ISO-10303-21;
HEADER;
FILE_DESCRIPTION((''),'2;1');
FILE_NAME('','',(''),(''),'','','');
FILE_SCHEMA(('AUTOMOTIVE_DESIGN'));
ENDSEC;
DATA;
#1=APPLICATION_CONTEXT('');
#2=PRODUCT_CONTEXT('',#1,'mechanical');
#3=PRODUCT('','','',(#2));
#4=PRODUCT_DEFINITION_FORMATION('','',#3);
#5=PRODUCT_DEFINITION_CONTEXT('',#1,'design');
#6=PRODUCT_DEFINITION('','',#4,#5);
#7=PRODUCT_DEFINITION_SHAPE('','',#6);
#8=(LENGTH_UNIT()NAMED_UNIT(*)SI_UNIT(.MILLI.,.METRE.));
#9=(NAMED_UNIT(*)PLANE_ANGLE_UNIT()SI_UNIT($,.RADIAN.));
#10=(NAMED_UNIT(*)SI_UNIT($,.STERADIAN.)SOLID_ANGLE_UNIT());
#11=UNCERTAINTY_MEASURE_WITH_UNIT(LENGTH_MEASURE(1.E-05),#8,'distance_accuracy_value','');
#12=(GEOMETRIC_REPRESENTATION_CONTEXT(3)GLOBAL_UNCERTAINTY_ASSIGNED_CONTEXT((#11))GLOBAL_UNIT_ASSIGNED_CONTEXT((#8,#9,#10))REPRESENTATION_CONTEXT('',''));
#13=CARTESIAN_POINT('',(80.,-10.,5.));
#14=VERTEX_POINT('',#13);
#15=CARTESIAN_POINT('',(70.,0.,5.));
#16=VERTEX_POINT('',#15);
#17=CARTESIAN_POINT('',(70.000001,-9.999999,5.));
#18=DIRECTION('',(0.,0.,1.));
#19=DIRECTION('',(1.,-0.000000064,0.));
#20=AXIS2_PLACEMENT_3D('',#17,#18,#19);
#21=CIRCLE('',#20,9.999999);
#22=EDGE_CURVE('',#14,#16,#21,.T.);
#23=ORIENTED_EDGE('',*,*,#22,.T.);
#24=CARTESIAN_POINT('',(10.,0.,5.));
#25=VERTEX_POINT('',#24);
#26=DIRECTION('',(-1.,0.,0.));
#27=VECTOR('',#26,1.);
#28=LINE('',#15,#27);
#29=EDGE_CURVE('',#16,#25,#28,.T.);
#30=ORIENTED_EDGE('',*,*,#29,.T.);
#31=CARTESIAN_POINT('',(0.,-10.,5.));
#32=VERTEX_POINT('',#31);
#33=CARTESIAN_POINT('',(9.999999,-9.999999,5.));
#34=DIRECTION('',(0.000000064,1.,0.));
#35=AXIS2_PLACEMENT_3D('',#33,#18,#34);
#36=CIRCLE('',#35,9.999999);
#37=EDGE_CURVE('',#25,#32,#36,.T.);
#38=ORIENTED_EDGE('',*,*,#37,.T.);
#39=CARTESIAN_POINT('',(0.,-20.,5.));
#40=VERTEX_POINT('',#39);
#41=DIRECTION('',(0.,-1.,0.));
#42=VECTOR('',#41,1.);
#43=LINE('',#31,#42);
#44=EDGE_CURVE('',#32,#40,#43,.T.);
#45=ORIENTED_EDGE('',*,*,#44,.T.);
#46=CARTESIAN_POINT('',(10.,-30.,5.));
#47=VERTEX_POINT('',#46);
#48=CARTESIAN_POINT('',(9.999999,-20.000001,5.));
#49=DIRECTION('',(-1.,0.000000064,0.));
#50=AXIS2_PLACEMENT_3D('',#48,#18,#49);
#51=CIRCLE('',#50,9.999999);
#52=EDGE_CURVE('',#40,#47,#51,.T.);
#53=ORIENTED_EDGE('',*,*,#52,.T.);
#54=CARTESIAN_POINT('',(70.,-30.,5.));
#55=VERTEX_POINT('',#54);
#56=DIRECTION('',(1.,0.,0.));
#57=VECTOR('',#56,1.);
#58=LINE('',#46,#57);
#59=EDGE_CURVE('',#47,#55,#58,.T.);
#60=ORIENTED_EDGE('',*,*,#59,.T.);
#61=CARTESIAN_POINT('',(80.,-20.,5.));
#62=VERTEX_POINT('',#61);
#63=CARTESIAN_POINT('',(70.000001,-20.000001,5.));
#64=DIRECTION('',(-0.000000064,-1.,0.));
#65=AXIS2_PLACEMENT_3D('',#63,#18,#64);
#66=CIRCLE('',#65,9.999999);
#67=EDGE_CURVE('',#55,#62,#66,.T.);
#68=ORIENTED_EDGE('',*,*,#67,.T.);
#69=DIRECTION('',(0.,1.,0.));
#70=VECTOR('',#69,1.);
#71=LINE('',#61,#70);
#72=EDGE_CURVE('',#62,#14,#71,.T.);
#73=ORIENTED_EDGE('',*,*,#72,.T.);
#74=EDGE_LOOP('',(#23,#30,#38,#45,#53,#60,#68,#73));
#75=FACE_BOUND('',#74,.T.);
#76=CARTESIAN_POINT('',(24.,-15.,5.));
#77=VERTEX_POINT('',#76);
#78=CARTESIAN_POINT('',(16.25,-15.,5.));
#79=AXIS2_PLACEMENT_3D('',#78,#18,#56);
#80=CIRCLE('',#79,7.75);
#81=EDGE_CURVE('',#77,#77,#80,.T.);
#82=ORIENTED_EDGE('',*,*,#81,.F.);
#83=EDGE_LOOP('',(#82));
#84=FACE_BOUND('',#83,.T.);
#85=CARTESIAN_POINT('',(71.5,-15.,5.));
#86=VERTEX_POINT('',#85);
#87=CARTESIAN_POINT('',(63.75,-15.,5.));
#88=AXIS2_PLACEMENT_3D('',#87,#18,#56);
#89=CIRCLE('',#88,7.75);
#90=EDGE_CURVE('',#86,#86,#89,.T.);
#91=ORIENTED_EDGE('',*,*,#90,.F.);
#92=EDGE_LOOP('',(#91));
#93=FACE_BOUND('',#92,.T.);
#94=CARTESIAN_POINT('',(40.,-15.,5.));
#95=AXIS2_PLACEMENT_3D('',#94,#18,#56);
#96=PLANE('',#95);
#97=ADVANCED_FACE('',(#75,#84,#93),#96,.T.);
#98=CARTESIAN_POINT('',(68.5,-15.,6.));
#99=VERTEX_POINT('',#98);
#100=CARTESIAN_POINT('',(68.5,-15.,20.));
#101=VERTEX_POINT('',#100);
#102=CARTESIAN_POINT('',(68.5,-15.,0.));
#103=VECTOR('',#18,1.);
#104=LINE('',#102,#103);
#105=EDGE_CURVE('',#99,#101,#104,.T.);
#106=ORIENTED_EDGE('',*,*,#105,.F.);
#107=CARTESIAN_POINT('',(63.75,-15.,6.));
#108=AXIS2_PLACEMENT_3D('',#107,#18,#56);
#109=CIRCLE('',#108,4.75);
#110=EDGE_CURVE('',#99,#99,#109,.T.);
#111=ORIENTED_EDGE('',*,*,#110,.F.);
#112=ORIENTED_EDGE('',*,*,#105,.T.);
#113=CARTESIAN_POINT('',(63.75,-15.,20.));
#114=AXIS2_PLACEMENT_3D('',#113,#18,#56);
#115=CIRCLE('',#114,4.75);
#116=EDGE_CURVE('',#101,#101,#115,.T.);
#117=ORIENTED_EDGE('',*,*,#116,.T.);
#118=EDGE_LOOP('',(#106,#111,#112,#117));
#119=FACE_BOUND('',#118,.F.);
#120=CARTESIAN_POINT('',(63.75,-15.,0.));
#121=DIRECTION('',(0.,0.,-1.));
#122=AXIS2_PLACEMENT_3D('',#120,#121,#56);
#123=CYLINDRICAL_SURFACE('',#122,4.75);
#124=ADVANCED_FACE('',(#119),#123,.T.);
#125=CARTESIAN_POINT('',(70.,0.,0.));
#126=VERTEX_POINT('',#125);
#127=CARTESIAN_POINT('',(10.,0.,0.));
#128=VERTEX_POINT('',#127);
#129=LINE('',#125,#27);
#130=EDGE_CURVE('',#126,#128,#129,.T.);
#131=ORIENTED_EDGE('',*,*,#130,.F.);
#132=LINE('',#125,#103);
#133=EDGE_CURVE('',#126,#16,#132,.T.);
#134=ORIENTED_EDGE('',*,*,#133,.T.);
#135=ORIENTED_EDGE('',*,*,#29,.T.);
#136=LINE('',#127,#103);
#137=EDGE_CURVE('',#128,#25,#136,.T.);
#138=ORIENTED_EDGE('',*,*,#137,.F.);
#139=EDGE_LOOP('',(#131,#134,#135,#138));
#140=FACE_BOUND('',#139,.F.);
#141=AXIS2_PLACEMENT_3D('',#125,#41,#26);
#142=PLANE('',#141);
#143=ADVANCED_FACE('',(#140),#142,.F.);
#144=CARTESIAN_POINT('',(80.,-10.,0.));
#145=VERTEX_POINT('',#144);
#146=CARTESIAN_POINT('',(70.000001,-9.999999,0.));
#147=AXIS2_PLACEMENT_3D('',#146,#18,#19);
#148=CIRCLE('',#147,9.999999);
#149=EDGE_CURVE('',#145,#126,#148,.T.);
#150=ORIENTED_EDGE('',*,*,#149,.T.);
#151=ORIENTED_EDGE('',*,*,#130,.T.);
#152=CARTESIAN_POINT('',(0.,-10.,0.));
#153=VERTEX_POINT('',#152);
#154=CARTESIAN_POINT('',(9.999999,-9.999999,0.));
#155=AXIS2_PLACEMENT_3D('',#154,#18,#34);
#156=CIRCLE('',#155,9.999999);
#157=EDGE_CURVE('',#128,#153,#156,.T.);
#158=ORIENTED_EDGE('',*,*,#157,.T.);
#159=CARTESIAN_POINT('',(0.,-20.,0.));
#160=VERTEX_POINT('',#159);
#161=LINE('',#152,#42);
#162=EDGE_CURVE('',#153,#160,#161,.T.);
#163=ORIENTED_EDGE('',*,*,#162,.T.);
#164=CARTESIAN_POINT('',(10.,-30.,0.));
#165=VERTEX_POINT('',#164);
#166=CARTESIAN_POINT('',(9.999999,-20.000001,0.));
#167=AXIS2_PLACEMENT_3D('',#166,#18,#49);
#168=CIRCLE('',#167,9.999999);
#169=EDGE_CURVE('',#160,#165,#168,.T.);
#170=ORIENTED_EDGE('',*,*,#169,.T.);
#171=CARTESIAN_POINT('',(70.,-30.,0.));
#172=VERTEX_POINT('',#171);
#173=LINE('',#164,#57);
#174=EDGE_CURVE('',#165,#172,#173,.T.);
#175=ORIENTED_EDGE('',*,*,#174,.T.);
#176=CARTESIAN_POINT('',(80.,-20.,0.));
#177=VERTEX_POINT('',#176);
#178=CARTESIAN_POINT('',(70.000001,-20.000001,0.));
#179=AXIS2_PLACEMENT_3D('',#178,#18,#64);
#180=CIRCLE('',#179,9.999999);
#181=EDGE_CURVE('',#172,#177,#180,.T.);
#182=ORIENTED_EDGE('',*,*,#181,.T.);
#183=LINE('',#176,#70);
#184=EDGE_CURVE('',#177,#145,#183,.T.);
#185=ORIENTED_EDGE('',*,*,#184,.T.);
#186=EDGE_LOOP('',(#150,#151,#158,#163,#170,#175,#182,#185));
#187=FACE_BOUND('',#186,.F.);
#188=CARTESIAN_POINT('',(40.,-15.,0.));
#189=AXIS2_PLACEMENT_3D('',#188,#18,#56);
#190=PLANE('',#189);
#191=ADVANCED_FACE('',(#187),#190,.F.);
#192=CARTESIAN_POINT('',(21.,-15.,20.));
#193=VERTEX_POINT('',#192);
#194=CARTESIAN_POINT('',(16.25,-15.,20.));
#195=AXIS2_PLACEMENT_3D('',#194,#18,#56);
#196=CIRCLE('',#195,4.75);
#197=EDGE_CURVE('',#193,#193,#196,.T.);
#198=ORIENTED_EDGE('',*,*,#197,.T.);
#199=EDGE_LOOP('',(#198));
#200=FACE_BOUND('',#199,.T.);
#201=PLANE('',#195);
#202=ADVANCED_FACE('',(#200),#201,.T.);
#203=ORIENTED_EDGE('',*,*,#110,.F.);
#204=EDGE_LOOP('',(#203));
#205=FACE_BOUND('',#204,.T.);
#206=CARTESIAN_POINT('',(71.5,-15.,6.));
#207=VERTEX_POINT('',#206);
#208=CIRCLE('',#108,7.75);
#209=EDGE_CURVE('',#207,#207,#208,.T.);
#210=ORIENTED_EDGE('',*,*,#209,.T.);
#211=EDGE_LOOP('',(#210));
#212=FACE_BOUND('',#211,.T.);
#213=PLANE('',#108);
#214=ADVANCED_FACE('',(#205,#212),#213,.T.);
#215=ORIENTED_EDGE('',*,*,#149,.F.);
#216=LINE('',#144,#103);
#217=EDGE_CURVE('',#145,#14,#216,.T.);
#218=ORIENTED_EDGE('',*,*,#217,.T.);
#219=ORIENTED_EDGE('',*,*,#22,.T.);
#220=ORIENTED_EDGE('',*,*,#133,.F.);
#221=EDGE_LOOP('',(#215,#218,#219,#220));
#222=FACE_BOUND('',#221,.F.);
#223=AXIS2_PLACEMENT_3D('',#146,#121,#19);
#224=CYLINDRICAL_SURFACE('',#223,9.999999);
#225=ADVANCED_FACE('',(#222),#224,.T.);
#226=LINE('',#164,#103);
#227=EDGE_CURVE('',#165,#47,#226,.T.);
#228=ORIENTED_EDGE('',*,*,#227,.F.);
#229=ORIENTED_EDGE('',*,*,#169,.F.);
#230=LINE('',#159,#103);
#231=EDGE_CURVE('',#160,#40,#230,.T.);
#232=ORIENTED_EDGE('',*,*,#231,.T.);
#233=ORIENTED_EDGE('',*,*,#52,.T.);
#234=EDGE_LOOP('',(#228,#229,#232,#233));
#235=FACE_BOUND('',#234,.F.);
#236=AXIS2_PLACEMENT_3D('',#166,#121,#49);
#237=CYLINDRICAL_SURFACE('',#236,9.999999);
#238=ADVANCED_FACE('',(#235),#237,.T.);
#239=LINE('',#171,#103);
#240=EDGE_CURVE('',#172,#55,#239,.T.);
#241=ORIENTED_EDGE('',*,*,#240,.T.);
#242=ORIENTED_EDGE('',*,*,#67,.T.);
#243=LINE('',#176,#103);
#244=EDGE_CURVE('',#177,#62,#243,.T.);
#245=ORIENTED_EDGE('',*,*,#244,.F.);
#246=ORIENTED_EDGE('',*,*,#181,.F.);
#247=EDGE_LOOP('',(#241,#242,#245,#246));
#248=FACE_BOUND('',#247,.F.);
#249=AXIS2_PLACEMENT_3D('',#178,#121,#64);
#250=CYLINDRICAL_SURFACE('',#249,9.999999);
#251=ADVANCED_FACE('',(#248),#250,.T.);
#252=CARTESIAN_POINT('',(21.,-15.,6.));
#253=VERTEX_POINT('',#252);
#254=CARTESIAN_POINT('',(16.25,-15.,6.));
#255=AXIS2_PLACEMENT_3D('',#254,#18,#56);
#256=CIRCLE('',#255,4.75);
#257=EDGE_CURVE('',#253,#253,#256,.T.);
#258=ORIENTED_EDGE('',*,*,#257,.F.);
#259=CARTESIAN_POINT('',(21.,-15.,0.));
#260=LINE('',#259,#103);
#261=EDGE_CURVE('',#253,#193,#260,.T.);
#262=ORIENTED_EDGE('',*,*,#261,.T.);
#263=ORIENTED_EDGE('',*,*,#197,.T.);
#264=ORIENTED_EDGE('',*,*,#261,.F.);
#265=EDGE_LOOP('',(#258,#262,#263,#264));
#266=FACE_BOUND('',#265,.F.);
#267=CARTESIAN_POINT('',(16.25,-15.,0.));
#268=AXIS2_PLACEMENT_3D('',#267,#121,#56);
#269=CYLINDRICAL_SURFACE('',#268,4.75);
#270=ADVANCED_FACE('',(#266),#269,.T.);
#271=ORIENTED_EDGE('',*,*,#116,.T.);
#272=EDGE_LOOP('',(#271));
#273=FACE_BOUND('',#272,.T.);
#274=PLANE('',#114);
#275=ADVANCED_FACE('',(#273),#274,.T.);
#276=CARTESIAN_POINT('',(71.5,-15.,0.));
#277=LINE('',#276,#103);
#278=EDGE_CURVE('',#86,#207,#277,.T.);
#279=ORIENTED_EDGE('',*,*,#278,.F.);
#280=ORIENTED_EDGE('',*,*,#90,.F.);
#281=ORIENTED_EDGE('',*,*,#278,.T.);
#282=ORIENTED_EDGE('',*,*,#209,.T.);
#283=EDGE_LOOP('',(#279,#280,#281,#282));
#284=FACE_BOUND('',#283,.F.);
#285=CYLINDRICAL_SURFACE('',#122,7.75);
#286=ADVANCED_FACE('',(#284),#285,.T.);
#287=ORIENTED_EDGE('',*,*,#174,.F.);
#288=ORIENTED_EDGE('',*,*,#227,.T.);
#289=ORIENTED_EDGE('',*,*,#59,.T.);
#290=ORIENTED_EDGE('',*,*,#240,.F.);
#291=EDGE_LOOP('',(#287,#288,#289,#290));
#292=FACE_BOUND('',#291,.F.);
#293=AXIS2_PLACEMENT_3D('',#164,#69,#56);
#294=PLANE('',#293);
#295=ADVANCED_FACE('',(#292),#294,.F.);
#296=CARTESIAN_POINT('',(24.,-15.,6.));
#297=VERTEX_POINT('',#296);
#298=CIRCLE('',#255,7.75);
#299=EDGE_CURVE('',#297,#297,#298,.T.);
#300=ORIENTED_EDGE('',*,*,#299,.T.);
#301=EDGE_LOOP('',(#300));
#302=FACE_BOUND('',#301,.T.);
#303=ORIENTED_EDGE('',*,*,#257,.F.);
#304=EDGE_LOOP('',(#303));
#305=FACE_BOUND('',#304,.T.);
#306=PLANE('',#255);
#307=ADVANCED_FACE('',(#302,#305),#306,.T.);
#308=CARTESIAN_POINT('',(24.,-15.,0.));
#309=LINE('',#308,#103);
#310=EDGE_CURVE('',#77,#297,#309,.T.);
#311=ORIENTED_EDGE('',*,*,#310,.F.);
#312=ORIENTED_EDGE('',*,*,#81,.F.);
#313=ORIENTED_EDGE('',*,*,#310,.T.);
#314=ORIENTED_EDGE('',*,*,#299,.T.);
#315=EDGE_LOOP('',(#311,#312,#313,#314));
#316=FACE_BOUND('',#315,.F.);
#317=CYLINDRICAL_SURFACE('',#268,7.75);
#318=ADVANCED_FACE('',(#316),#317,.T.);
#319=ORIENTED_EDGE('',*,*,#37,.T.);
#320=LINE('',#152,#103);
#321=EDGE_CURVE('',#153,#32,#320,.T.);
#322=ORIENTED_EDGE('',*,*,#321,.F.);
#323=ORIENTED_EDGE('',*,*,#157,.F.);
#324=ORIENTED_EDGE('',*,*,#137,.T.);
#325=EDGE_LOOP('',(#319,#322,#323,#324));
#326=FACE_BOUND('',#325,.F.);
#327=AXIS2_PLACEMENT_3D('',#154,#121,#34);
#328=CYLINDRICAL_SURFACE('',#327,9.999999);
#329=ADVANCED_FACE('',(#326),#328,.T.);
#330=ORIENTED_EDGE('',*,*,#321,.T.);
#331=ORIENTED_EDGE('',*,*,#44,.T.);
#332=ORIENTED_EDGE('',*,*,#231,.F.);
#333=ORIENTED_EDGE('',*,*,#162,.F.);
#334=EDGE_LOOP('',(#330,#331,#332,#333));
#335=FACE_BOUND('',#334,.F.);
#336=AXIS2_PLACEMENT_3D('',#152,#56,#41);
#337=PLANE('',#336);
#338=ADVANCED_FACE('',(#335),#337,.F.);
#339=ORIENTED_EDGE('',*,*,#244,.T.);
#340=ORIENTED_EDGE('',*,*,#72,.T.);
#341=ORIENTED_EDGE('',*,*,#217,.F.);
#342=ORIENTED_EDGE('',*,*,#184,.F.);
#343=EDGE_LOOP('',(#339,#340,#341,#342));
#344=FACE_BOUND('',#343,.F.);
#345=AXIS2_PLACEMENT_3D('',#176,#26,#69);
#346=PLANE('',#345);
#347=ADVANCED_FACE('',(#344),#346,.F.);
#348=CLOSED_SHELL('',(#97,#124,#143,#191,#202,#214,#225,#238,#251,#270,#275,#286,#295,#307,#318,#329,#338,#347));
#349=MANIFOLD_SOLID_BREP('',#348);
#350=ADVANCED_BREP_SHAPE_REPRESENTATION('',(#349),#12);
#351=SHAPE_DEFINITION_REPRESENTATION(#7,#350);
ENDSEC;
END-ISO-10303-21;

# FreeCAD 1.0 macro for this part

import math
import FreeCAD as App
import Part
import Sketcher
Q = App.Units.Quantity

doc = App.newDocument("Part")
body = doc.addObject("PartDesign::Body", "Body")

# Sketch on XY plane
sketch1 = body.newObject("Sketcher::SketchObject", "Sketch")
sketch1.AttachmentSupport = (doc.getObject("XY_Plane"), [""])
sketch1.MapMode = "FlatFace"
sketch1.addGeometry(Part.LineSegment(App.Vector(70, 0, 0), App.Vector(10, 0, 0)), False)
sketch1.addGeometry(Part.ArcOfCircle(Part.Circle(App.Vector(10, -10, 0), App.Vector(0, 0, 1), 10), math.radians(90), math.radians(180)), False)
sketch1.addGeometry(Part.LineSegment(App.Vector(0, -10, 0), App.Vector(0, -20, 0)), False)
sketch1.addGeometry(Part.ArcOfCircle(Part.Circle(App.Vector(10, -20, 0), App.Vector(0, 0, 1), 10), math.radians(180), math.radians(270)), False)
sketch1.addGeometry(Part.LineSegment(App.Vector(10, -30, 0), App.Vector(70, -30, 0)), False)
sketch1.addGeometry(Part.ArcOfCircle(Part.Circle(App.Vector(70, -20, 0), App.Vector(0, 0, 1), 10), math.radians(-90), math.radians(0)), False)
sketch1.addGeometry(Part.LineSegment(App.Vector(80, -20, 0), App.Vector(80, -10, 0)), False)
sketch1.addGeometry(Part.ArcOfCircle(Part.Circle(App.Vector(70, -10, 0), App.Vector(0, 0, 1), 10), math.radians(0), math.radians(90)), False)
sketch1.addGeometry(Part.Circle(App.Vector(16, -15, 0), App.Vector(0, 0, 1), 8), False)
sketch1.addGeometry(Part.Circle(App.Vector(64, -15, 0), App.Vector(0, 0, 1), 8), False)
sketch1.addConstraint(Sketcher.Constraint("Tangent", 0, 2, 1, 1))
sketch1.addConstraint(Sketcher.Constraint("Tangent", 1, 2, 2, 1))
sketch1.addConstraint(Sketcher.Constraint("Tangent", 2, 2, 3, 1))
sketch1.addConstraint(Sketcher.Constraint("Tangent", 3, 2, 4, 1))
sketch1.addConstraint(Sketcher.Constraint("Tangent", 4, 2, 5, 1))
sketch1.addConstraint(Sketcher.Constraint("Tangent", 5, 2, 6, 1))
sketch1.addConstraint(Sketcher.Constraint("Tangent", 6, 2, 7, 1))
sketch1.addConstraint(Sketcher.Constraint("Tangent", 7, 2, 0, 1))
sketch1.addConstraint(Sketcher.Constraint("Horizontal", 0))
sketch1.addConstraint(Sketcher.Constraint("Vertical", 2))
sketch1.addConstraint(Sketcher.Constraint("Horizontal", 4))
sketch1.addConstraint(Sketcher.Constraint("Vertical", 6))
sketch1.addConstraint(Sketcher.Constraint("Equal", 1, 3))
sketch1.addConstraint(Sketcher.Constraint("Equal", 3, 5))
sketch1.addConstraint(Sketcher.Constraint("Equal", 5, 7))
sketch1.addConstraint(Sketcher.Constraint("Equal", 8, 9))
sketch1.addConstraint(Sketcher.Constraint("PointOnObject", 0, 2, -1))
sketch1.addConstraint(Sketcher.Constraint("PointOnObject", 1, 2, -2))
sketch1.addConstraint(Sketcher.Constraint("Horizontal", 8, 3, 9, 3))
sketch1.addConstraint(Sketcher.Constraint("Radius", 1, Q("9.999999 mm")))
sketch1.addConstraint(Sketcher.Constraint("Diameter", 8, Q("15.5 mm")))
sketch1.addConstraint(Sketcher.Constraint("DistanceX", 0, 2, 0, 1, Q("60 mm")))
sketch1.addConstraint(Sketcher.Constraint("DistanceY", 2, 2, 2, 1, Q("10 mm")))
sketch1.addConstraint(Sketcher.Constraint("DistanceY", 8, 3, -1, 1, Q("15 mm")))
sketch1.addConstraint(Sketcher.Constraint("DistanceX", 8, 3, 9, 3, Q("47.5 mm")))
sketch1.addConstraint(Sketcher.Constraint("DistanceX", -1, 1, 8, 3, Q("16.25 mm")))
pad1 = body.newObject("PartDesign::Pad", "Pad")
pad1.Profile = sketch1
pad1.Length = 5

# Sketch on XY plane
sketch2 = body.newObject("Sketcher::SketchObject", "Sketch001")
sketch2.AttachmentSupport = (doc.getObject("XY_Plane"), [""])
sketch2.MapMode = "FlatFace"
sketch2.addGeometry(Part.Circle(App.Vector(16.2, -15, 0), App.Vector(0, 0, 1), 7.8), False)
sketch2.addGeometry(Part.Circle(App.Vector(16.2, -15, 0), App.Vector(0, 0, 1), 4.8), False)
sketch2.addGeometry(Part.Circle(App.Vector(63.8, -15, 0), App.Vector(0, 0, 1), 7.8), False)
sketch2.addGeometry(Part.Circle(App.Vector(63.8, -15, 0), App.Vector(0, 0, 1), 4.8), False)
sketch2.addConstraint(Sketcher.Constraint("Coincident", 1, 3, 0, 3))
sketch2.addConstraint(Sketcher.Constraint("Coincident", 3, 3, 2, 3))
sketch2.addConstraint(Sketcher.Constraint("Equal", 0, 2))
sketch2.addConstraint(Sketcher.Constraint("Equal", 1, 3))
sketch2.addConstraint(Sketcher.Constraint("Horizontal", 1, 3, 2, 3))
sketch2.addConstraint(Sketcher.Constraint("Diameter", 0, Q("15.5 mm")))
sketch2.addConstraint(Sketcher.Constraint("Diameter", 1, Q("9.5 mm")))
sketch2.addConstraint(Sketcher.Constraint("DistanceY", 0, 3, -1, 1, Q("15 mm")))
sketch2.addConstraint(Sketcher.Constraint("DistanceX", 0, 3, 2, 3, Q("47.5 mm")))
sketch2.addConstraint(Sketcher.Constraint("DistanceX", -1, 1, 0, 3, Q("16.25 mm")))
pad2 = body.newObject("PartDesign::Pad", "Pad001")
pad2.Profile = sketch2
pad2.Length = 6

# Sketch on XY plane
sketch3 = body.newObject("Sketcher::SketchObject", "Sketch002")
sketch3.AttachmentSupport = (doc.getObject("XY_Plane"), [""])
sketch3.MapMode = "FlatFace"
sketch3.addGeometry(Part.Circle(App.Vector(16.2, -15, 0), App.Vector(0, 0, 1), 4.8), False)
sketch3.addGeometry(Part.Circle(App.Vector(63.8, -15, 0), App.Vector(0, 0, 1), 4.8), False)
sketch3.addConstraint(Sketcher.Constraint("Equal", 0, 1))
sketch3.addConstraint(Sketcher.Constraint("Horizontal", 0, 3, 1, 3))
sketch3.addConstraint(Sketcher.Constraint("Diameter", 0, Q("9.5 mm")))
sketch3.addConstraint(Sketcher.Constraint("DistanceY", 0, 3, -1, 1, Q("15 mm")))
sketch3.addConstraint(Sketcher.Constraint("DistanceX", 0, 3, 1, 3, Q("47.5 mm")))
sketch3.addConstraint(Sketcher.Constraint("DistanceX", -1, 1, 0, 3, Q("16.25 mm")))
pad3 = body.newObject("PartDesign::Pad", "Pad002")
pad3.Profile = sketch3
pad3.Length = 20

doc.recompute()
